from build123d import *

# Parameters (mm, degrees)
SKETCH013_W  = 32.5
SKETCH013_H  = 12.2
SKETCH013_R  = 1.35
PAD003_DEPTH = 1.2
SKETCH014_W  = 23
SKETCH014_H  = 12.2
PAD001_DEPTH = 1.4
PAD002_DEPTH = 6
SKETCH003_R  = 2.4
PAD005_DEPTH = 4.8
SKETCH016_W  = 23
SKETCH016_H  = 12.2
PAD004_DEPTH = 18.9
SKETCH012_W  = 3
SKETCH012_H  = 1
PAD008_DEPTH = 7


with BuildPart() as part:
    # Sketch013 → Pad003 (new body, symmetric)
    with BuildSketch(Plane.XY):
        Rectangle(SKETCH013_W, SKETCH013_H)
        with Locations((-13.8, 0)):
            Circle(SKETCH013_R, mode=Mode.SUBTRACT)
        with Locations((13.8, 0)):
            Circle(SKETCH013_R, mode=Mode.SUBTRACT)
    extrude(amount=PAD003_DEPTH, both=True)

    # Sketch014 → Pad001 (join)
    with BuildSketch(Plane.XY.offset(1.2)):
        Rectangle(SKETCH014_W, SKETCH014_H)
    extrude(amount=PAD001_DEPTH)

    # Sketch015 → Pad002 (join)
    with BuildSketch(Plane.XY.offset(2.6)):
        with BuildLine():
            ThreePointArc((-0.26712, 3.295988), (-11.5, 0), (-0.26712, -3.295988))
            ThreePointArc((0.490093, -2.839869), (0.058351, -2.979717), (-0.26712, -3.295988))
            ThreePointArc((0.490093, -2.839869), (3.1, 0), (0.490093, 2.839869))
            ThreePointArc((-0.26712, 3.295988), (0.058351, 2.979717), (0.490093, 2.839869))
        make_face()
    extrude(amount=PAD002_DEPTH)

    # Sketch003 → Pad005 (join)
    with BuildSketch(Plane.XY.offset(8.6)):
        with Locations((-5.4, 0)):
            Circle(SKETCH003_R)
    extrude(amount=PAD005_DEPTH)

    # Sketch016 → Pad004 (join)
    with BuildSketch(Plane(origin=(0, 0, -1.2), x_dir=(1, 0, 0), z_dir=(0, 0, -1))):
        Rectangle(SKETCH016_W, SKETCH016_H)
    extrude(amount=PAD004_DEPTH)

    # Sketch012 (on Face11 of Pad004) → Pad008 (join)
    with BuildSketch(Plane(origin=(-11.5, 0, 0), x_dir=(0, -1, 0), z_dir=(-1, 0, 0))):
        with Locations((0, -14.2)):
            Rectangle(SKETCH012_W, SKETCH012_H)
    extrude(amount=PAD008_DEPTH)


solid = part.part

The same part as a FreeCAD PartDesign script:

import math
import FreeCAD as App
import Part
import Sketcher

V = App.Vector


def add_polygon(sketch, points):
    """Adds a closed chain of lines whose ends are joined by coincident constraints."""
    first, n = sketch.GeometryCount, len(points)
    for a, b in zip(points, points[1:] + points[:1]):
        sketch.addGeometry(Part.LineSegment(App.Vector(*a, 0), App.Vector(*b, 0)), False)
    for i in range(n):
        sketch.addConstraint(Sketcher.Constraint("Coincident", first + i, 2, first + (i + 1) % n, 1))

doc = App.newDocument("Part")
body = doc.addObject("PartDesign::Body", "Body")

# Sketch on XY plane
sketch1 = body.newObject("Sketcher::SketchObject", "Sketch")
sketch1.AttachmentSupport = (doc.getObject("XY_Plane"), [""])
sketch1.MapMode = "FlatFace"
add_polygon(sketch1, [(-16.2, 6.1), (-16.2, -6.1), (16.2, -6.1), (16.2, 6.1)])  # lines 0-3
sketch1.addGeometry(Part.Circle(V(-13.8, 0, 0), V(0, 0, 1), 1.4), False)  # 4
sketch1.addGeometry(Part.Circle(V(13.8, 0, 0), V(0, 0, 1), 1.4), False)  # 5
sketch1.addConstraint(Sketcher.Constraint("Vertical", 0))
sketch1.addConstraint(Sketcher.Constraint("Horizontal", 1))
sketch1.addConstraint(Sketcher.Constraint("Vertical", 2))
sketch1.addConstraint(Sketcher.Constraint("Horizontal", 3))
sketch1.addConstraint(Sketcher.Constraint("Equal", 4, 5))
sketch1.addConstraint(Sketcher.Constraint("Symmetric", 4, 3, 5, 3, -1, 1))
sketch1.addConstraint(Sketcher.Constraint("Symmetric", 0, 2, 2, 2, -1, 1))
sketch1.addConstraint(Sketcher.Constraint("PointOnObject", 4, 3, -1))
sketch1.addConstraint(Sketcher.Constraint("Diameter", 4, 2.7))
sketch1.addConstraint(Sketcher.Constraint("DistanceX", 1, 1, 1, 2, 32.5))
sketch1.addConstraint(Sketcher.Constraint("DistanceY", 0, 2, 0, 1, 12.2))
sketch1.addConstraint(Sketcher.Constraint("DistanceX", 4, 3, -1, 1, 13.8))
pad1 = body.newObject("PartDesign::Pad", "Pad")
pad1.Profile = sketch1
pad1.Length = 2.4
pad1.Midplane = True

# Sketch on XY plane
sketch2 = body.newObject("Sketcher::SketchObject", "Sketch001")
sketch2.AttachmentSupport = (doc.getObject("XY_Plane"), [""])
sketch2.MapMode = "FlatFace"
sketch2.AttachmentOffset = App.Placement(V(0, 0, 1.2), App.Rotation())
add_polygon(sketch2, [(-12, 6), (-12, -6), (12, -6), (12, 6)])  # lines 0-3
sketch2.addConstraint(Sketcher.Constraint("Vertical", 0))
sketch2.addConstraint(Sketcher.Constraint("Horizontal", 1))
sketch2.addConstraint(Sketcher.Constraint("Vertical", 2))
sketch2.addConstraint(Sketcher.Constraint("Horizontal", 3))
sketch2.addConstraint(Sketcher.Constraint("Symmetric", 0, 2, 2, 2, -1, 1))
sketch2.addConstraint(Sketcher.Constraint("DistanceX", 1, 1, 1, 2, 23.0))
sketch2.addConstraint(Sketcher.Constraint("DistanceY", 0, 2, 0, 1, 12.2))
pad2 = body.newObject("PartDesign::Pad", "Pad001")
pad2.Profile = sketch2
pad2.Length = 1.4

# Sketch on XY plane
sketch3 = body.newObject("Sketcher::SketchObject", "Sketch002")
sketch3.AttachmentSupport = (doc.getObject("XY_Plane"), [""])
sketch3.MapMode = "FlatFace"
sketch3.AttachmentOffset = App.Placement(V(0, 0, 2.6), App.Rotation())
sketch3.addGeometry(Part.ArcOfCircle(Part.Circle(V(-5.4, 0, 0), V(0, 0, 1), 6.1), math.radians(33), math.radians(327)), False)
sketch3.addGeometry(Part.ArcOfCircle(Part.Circle(V(0.6, -3.8, 0), V(0, 0, 1), 1), math.radians(95), math.radians(147)), False)
sketch3.addGeometry(Part.ArcOfCircle(Part.Circle(V(0.2, 0, 0), V(0, 0, 1), 2.9), math.radians(-85), math.radians(85)), False)
sketch3.addGeometry(Part.ArcOfCircle(Part.Circle(V(0.6, 3.8, 0), V(0, 0, 1), 1), math.radians(-147), math.radians(-95)), False)
sketch3.addConstraint(Sketcher.Constraint("Coincident", 0, 2, 1, 2))
sketch3.addConstraint(Sketcher.Constraint("Tangent", 1, 1, 2, 1))
sketch3.addConstraint(Sketcher.Constraint("Tangent", 2, 2, 3, 2))
sketch3.addConstraint(Sketcher.Constraint("Coincident", 3, 1, 0, 1))
sketch3.addConstraint(Sketcher.Constraint("Equal", 1, 3))
sketch3.addConstraint(Sketcher.Constraint("Symmetric", 1, 3, 3, 3, -1))
sketch3.addConstraint(Sketcher.Constraint("Vertical", 0, 2, 3, 1))
sketch3.addConstraint(Sketcher.Constraint("Radius", 0, 6.1))
sketch3.addConstraint(Sketcher.Constraint("Radius", 2, 2.85))
sketch3.addConstraint(Sketcher.Constraint("DistanceX", 0, 3, -1, 1, 5.4))
sketch3.addConstraint(Sketcher.Constraint("DistanceX", -1, 1, 2, 3, 0.25))
sketch3.addConstraint(Sketcher.Constraint("Radius", 1, 1.000004))
sketch3.addConstraint(Sketcher.Constraint("DistanceX", 0, 2, -1, 1, 0.26712))
pad3 = body.newObject("PartDesign::Pad", "Pad002")
pad3.Profile = sketch3
pad3.Length = 6

# Sketch on XY plane
sketch4 = body.newObject("Sketcher::SketchObject", "Sketch003")
sketch4.AttachmentSupport = (doc.getObject("XY_Plane"), [""])
sketch4.MapMode = "FlatFace"
sketch4.AttachmentOffset = App.Placement(V(0, 0, 8.6), App.Rotation())
sketch4.addGeometry(Part.Circle(V(-5.4, 0, 0), V(0, 0, 1), 2.4), False)
sketch4.addConstraint(Sketcher.Constraint("PointOnObject", 0, 3, -1))
sketch4.addConstraint(Sketcher.Constraint("Diameter", 0, 4.8))
sketch4.addConstraint(Sketcher.Constraint("DistanceX", 0, 3, -1, 1, 5.4))
pad4 = body.newObject("PartDesign::Pad", "Pad003")
pad4.Profile = sketch4
pad4.Length = 4.8

# Sketch on XY plane
sketch5 = body.newObject("Sketcher::SketchObject", "Sketch004")
sketch5.AttachmentSupport = (doc.getObject("XY_Plane"), [""])
sketch5.MapMode = "FlatFace"
sketch5.AttachmentOffset = App.Placement(V(0, 0, -1.2), App.Rotation())
add_polygon(sketch5, [(-12, -6), (-12, 6), (12, 6), (12, -6)])  # lines 0-3
sketch5.addConstraint(Sketcher.Constraint("Vertical", 0))
sketch5.addConstraint(Sketcher.Constraint("Horizontal", 1))
sketch5.addConstraint(Sketcher.Constraint("Vertical", 2))
sketch5.addConstraint(Sketcher.Constraint("Horizontal", 3))
sketch5.addConstraint(Sketcher.Constraint("Symmetric", 0, 2, 2, 2, -1, 1))
sketch5.addConstraint(Sketcher.Constraint("DistanceX", 1, 1, 1, 2, 23.0))
sketch5.addConstraint(Sketcher.Constraint("DistanceY", 0, 1, 0, 2, 12.2))
pad5 = body.newObject("PartDesign::Pad", "Pad004")
pad5.Profile = sketch5
pad5.Length = 18.9
pad5.Reversed = True

# Sketch on YZ plane
sketch6 = body.newObject("Sketcher::SketchObject", "Sketch005")
sketch6.AttachmentSupport = (doc.getObject("YZ_Plane"), [""])
sketch6.MapMode = "FlatFace"
sketch6.AttachmentOffset = App.Placement(V(0, 0, -11.5), App.Rotation())
add_polygon(sketch6, [(1.5, -13.7), (1.5, -14.7), (-1.5, -14.7), (-1.5, -13.7)])  # lines 0-3
sketch6.addConstraint(Sketcher.Constraint("Vertical", 0))
sketch6.addConstraint(Sketcher.Constraint("Horizontal", 1))
sketch6.addConstraint(Sketcher.Constraint("Vertical", 2))
sketch6.addConstraint(Sketcher.Constraint("Horizontal", 3))
sketch6.addConstraint(Sketcher.Constraint("DistanceX", 1, 2, 1, 1, 3.0))
sketch6.addConstraint(Sketcher.Constraint("DistanceY", 0, 2, 0, 1, 1.0))
sketch6.addConstraint(Sketcher.Constraint("DistanceX", -1, 1, 0, 2, 1.5))
sketch6.addConstraint(Sketcher.Constraint("DistanceY", 0, 2, -1, 1, 14.7))
pad6 = body.newObject("PartDesign::Pad", "Pad005")
pad6.Profile = sketch6
pad6.Length = 7
pad6.Reversed = True

doc.recompute()
